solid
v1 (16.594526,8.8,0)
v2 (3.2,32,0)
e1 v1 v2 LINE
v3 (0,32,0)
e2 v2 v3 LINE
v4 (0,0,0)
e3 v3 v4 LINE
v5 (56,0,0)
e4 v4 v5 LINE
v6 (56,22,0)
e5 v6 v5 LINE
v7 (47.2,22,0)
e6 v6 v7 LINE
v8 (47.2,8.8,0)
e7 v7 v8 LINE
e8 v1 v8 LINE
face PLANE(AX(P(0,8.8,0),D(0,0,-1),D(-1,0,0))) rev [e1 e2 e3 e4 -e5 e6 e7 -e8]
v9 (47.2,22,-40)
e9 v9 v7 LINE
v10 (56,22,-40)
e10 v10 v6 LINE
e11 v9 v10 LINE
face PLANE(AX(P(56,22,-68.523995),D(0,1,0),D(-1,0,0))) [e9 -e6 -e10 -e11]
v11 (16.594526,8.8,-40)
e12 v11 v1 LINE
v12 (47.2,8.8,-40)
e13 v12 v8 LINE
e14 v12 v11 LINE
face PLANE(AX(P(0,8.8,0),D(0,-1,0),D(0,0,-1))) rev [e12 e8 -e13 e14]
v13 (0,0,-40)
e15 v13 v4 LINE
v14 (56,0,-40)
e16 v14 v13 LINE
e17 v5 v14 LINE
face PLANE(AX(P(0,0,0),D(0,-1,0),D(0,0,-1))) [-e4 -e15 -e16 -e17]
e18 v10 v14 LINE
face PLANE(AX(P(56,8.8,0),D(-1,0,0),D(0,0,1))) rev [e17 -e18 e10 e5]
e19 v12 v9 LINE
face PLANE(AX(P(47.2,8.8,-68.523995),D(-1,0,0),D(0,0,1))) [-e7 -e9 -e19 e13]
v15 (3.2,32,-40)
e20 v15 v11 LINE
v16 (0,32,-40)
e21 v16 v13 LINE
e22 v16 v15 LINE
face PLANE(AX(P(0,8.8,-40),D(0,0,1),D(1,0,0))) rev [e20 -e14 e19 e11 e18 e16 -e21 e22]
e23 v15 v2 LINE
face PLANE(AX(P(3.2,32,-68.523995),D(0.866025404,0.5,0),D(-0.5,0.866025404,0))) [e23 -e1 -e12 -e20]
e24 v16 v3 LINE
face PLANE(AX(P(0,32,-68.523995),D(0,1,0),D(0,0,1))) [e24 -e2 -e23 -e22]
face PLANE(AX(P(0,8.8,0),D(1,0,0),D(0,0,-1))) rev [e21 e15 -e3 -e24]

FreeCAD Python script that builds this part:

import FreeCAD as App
import Part
import Sketcher
Q = App.Units.Quantity

doc = App.newDocument("Part")
params = doc.addObject("Spreadsheet::Sheet", "Params")
for row, (alias, value) in enumerate([
    ("sketch1_width", "56 mm"),
    ("sketch1_height", "40 mm"),
    ("pad1_length", "8.8 mm"),
    ("sketch2_width", "3.2 mm"),
    ("sketch2_width2", "8.8 mm"),
    ("sketch2_height", "23.2 mm"),
    ("sketch2_height2", "13.2 mm"),
    ("pad2_length", "40 mm"),
], start=1):
    params.set(f"A{row}", alias)
    params.set(f"B{row}", "=" + value)
    params.setAlias(f"B{row}", alias)

body = doc.addObject("PartDesign::Body", "Body")

sketch1 = body.newObject("Sketcher::SketchObject", "Sketch")
sketch1.AttachmentSupport = (doc.getObject("XZ_Plane"), [""])
sketch1.MapMode = "FlatFace"
sketch1.addGeometry(Part.LineSegment(App.Vector(0, -40, 0), App.Vector(0, 0, 0)), False)
sketch1.addGeometry(Part.LineSegment(App.Vector(0, 0, 0), App.Vector(56, 0, 0)), False)
sketch1.addGeometry(Part.LineSegment(App.Vector(56, 0, 0), App.Vector(56, -40, 0)), False)
sketch1.addGeometry(Part.LineSegment(App.Vector(56, -40, 0), App.Vector(0, -40, 0)), False)
sketch1.addConstraint(Sketcher.Constraint("Coincident", 0, 2, 1, 1))
sketch1.addConstraint(Sketcher.Constraint("Coincident", 1, 2, 2, 1))
sketch1.addConstraint(Sketcher.Constraint("Coincident", 2, 2, 3, 1))
sketch1.addConstraint(Sketcher.Constraint("Coincident", 3, 2, 0, 1))
sketch1.addConstraint(Sketcher.Constraint("Vertical", 0))
sketch1.addConstraint(Sketcher.Constraint("Horizontal", 1))
sketch1.addConstraint(Sketcher.Constraint("Vertical", 2))
sketch1.addConstraint(Sketcher.Constraint("Horizontal", 3))
sketch1.addConstraint(Sketcher.Constraint("Coincident", 0, 2, -1, 1))
sketch1.addConstraint(Sketcher.Constraint("DistanceX", 1, 1, 1, 2, 56.0))
sketch1.addConstraint(Sketcher.Constraint("DistanceY", 0, 1, 0, 2, 40.0))
sketch1.setExpression("Constraints[9]", "Params.sketch1_width")
sketch1.setExpression("Constraints[10]", "Params.sketch1_height")
pad1 = body.newObject("PartDesign::Pad", "Pad")
pad1.Profile = sketch1
pad1.setExpression("Length", "Params.pad1_length")
pad1.Reversed = True

sketch2 = body.newObject("Sketcher::SketchObject", "Sketch001")
sketch2.AttachmentSupport = (doc.getObject("XY_Plane"), [""])
sketch2.MapMode = "FlatFace"
sketch2.addGeometry(Part.LineSegment(App.Vector(0, 32, 0), App.Vector(0, 8.8, 0)), False)
sketch2.addGeometry(Part.LineSegment(App.Vector(0, 8.8, 0), App.Vector(16.6, 8.8, 0)), False)
sketch2.addGeometry(Part.LineSegment(App.Vector(16.6, 8.8, 0), App.Vector(3.2, 32, 0)), False)
sketch2.addGeometry(Part.LineSegment(App.Vector(3.2, 32, 0), App.Vector(0, 32, 0)), False)
sketch2.addGeometry(Part.LineSegment(App.Vector(47.2, 22, 0), App.Vector(47.2, 8.8, 0)), False)
sketch2.addGeometry(Part.LineSegment(App.Vector(47.2, 8.8, 0), App.Vector(56, 8.8, 0)), False)
sketch2.addGeometry(Part.LineSegment(App.Vector(56, 8.8, 0), App.Vector(56, 22, 0)), False)
sketch2.addGeometry(Part.LineSegment(App.Vector(56, 22, 0), App.Vector(47.2, 22, 0)), False)
sketch2.addConstraint(Sketcher.Constraint("Coincident", 0, 2, 1, 1))
sketch2.addConstraint(Sketcher.Constraint("Coincident", 1, 2, 2, 1))
sketch2.addConstraint(Sketcher.Constraint("Coincident", 2, 2, 3, 1))
sketch2.addConstraint(Sketcher.Constraint("Coincident", 3, 2, 0, 1))
sketch2.addConstraint(Sketcher.Constraint("Coincident", 4, 2, 5, 1))
sketch2.addConstraint(Sketcher.Constraint("Coincident", 5, 2, 6, 1))
sketch2.addConstraint(Sketcher.Constraint("Coincident", 6, 2, 7, 1))
sketch2.addConstraint(Sketcher.Constraint("Coincident", 7, 2, 4, 1))
sketch2.addConstraint(Sketcher.Constraint("Vertical", 0))
sketch2.addConstraint(Sketcher.Constraint("Horizontal", 1))
sketch2.addConstraint(Sketcher.Constraint("Horizontal", 3))
sketch2.addConstraint(Sketcher.Constraint("Vertical", 4))
sketch2.addConstraint(Sketcher.Constraint("Horizontal", 5))
sketch2.addConstraint(Sketcher.Constraint("Vertical", 6))
sketch2.addConstraint(Sketcher.Constraint("Horizontal", 7))
sketch2.addConstraint(Sketcher.Constraint("PointOnObject", 0, 2, -2))
sketch2.addConstraint(Sketcher.Constraint("Horizontal", 1, 2, 4, 2))
sketch2.addConstraint(Sketcher.Constraint("Angle", 2, Q("120 deg")))
sketch2.addConstraint(Sketcher.Constraint("DistanceX", 3, 2, 3, 1, 3.2))
sketch2.addConstraint(Sketcher.Constraint("DistanceX", 5, 1, 5, 2, 8.8))
sketch2.addConstraint(Sketcher.Constraint("DistanceY", 0, 2, 0, 1, 23.2))
sketch2.addConstraint(Sketcher.Constraint("DistanceY", 4, 2, 4, 1, 13.2))
sketch2.addConstraint(Sketcher.Constraint("DistanceY", -1, 1, 2, 2, 32.0))
sketch2.addConstraint(Sketcher.Constraint("DistanceX", -1, 1, 5, 2, 56.0))
sketch2.setExpression("Constraints[18]", "Params.sketch2_width")
sketch2.setExpression("Constraints[19]", "Params.sketch2_width2")
sketch2.setExpression("Constraints[20]", "Params.sketch2_height")
sketch2.setExpression("Constraints[21]", "Params.sketch2_height2")
pad2 = body.newObject("PartDesign::Pad", "Pad001")
pad2.Profile = sketch2
pad2.setExpression("Length", "Params.pad2_length")
pad2.Reversed = True

doc.recompute()
